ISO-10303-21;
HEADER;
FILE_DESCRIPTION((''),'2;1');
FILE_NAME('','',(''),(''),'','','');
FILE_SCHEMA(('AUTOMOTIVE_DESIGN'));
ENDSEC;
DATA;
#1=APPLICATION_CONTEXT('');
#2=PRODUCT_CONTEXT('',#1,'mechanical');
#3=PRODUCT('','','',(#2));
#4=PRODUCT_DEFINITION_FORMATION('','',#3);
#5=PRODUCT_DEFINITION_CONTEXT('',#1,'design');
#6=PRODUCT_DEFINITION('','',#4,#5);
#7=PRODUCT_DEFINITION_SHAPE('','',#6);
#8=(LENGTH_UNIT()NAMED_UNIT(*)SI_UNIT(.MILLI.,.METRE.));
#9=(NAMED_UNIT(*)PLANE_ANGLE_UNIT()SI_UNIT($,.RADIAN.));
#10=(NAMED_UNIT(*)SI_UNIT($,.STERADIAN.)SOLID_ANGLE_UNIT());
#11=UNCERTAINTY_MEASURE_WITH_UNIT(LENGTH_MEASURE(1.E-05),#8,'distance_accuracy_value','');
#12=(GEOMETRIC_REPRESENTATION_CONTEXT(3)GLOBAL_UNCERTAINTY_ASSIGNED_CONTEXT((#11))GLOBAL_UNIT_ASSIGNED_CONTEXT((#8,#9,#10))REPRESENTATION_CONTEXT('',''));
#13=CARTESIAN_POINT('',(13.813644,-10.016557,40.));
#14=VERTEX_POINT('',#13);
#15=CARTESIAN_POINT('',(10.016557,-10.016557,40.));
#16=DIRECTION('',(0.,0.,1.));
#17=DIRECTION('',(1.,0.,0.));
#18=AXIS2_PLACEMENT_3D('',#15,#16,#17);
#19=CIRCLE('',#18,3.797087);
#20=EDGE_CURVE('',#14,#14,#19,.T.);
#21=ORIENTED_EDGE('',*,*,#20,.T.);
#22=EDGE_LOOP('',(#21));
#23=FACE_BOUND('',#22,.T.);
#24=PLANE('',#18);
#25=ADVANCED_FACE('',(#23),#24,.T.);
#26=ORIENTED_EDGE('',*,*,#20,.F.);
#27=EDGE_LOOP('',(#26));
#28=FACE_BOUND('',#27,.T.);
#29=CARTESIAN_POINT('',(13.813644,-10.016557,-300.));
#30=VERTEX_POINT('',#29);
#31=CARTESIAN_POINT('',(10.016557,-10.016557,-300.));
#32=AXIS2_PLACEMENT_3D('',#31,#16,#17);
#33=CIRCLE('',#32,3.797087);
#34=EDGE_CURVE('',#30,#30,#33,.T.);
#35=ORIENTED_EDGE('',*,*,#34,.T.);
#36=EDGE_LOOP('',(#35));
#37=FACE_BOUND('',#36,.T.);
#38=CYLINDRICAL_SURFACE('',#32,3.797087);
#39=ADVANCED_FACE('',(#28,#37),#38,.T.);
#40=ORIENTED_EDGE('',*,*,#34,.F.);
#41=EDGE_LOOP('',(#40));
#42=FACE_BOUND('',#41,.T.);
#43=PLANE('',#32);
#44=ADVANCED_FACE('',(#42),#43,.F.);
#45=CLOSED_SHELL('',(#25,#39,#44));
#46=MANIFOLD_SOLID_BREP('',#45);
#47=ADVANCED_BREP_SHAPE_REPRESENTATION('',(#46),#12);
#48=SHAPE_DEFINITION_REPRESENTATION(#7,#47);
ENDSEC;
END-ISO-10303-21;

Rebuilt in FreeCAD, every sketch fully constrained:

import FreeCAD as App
import Part
import Sketcher

V = App.Vector
Q = App.Units.Quantity

doc = App.newDocument("Part")
body = doc.addObject("PartDesign::Body", "Body")

sketch1 = doc.addObject("Sketcher::SketchObject", "Sketch")
body.addObject(sketch1)
sketch1.AttachmentSupport = (doc.XY_Plane, [""])
sketch1.MapMode = "FlatFace"
sketch1.addGeometry(Part.Circle(V(10, -10, 0), V(0, 0, 1), 3.8), False)
sketch1.addConstraint([
    Sketcher.Constraint("Diameter", 0, Q("7.594173 mm")),
    Sketcher.Constraint("DistanceX", -1, 1, 0, 3, Q("10.016557 mm")),
    Sketcher.Constraint("DistanceY", 0, 3, -1, 1, Q("10.016557 mm")),
])
pad1 = doc.addObject("PartDesign::Pad", "Pad")
body.addObject(pad1)
pad1.Profile = sketch1
pad1.Length = 300
pad1.Reversed = True

sketch2 = doc.addObject("Sketcher::SketchObject", "Sketch001")
body.addObject(sketch2)
sketch2.AttachmentSupport = (doc.XY_Plane, [""])
sketch2.MapMode = "FlatFace"
sketch2.addGeometry(Part.Circle(V(10, -10, 0), V(0, 0, 1), 3.8), False)
sketch2.addConstraint([
    Sketcher.Constraint("Diameter", 0, Q("7.594173 mm")),
    Sketcher.Constraint("DistanceX", -1, 1, 0, 3, Q("10.016557 mm")),
    Sketcher.Constraint("DistanceY", 0, 3, -1, 1, Q("10.016557 mm")),
])
pad2 = doc.addObject("PartDesign::Pad", "Pad001")
body.addObject(pad2)
pad2.Profile = sketch2
pad2.Length = 40

doc.recompute()
